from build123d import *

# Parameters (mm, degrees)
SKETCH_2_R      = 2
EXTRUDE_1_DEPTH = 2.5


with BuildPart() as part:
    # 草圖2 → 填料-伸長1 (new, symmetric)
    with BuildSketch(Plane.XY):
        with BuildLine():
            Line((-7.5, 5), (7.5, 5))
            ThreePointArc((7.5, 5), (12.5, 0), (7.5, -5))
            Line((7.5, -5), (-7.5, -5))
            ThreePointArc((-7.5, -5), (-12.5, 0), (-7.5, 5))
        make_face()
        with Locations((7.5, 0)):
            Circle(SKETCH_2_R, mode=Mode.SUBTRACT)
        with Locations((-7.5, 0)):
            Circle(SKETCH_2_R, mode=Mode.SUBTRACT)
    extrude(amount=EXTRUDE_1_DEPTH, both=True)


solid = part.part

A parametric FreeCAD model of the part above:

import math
import FreeCAD as App
import Part
import Sketcher
from FreeCAD import Vector

doc = App.newDocument("Part")
body = doc.addObject("PartDesign::Body", "Body")

# Sketch on XY plane
sketch1 = body.newObject("Sketcher::SketchObject", "Sketch")
sketch1.AttachmentSupport = (doc.getObject("XY_Plane"), [""])
sketch1.MapMode = "FlatFace"
sketch1.addGeometry([
    Part.LineSegment(Vector(7.5, 5, 0), Vector(-7.5, 5, 0)),  # 0
    Part.ArcOfCircle(Part.Circle(Vector(-7.5, 0, 0), Vector(0, 0, 1), 5), math.radians(90), math.radians(270)),  # 1
    Part.LineSegment(Vector(-7.5, -5, 0), Vector(7.5, -5, 0)),  # 2
    Part.ArcOfCircle(Part.Circle(Vector(7.5, 0, 0), Vector(0, 0, 1), 5), math.radians(-90), math.radians(90)),  # 3
    Part.Circle(Vector(7.5, 0, 0), Vector(0, 0, 1), 2),  # 4
    Part.Circle(Vector(-7.5, 0, 0), Vector(0, 0, 1), 2),  # 5
], False)
sketch1.addConstraint([
    Sketcher.Constraint("Tangent", 0, 2, 1, 1),
    Sketcher.Constraint("Tangent", 1, 2, 2, 1),
    Sketcher.Constraint("Tangent", 2, 2, 3, 1),
    Sketcher.Constraint("Tangent", 3, 2, 0, 1),
    Sketcher.Constraint("Horizontal", 0),
    Sketcher.Constraint("Horizontal", 2),
    Sketcher.Constraint("Coincident", 4, 3, 3, 3),
    Sketcher.Constraint("Coincident", 5, 3, 1, 3),
    Sketcher.Constraint("Equal", 4, 5),
    Sketcher.Constraint("Symmetric", 1, 3, 3, 3, -1, 1),
    Sketcher.Constraint("Diameter", 4, 4.0),
    Sketcher.Constraint("Radius", 1, 5.0),
    Sketcher.Constraint("DistanceX", 0, 2, 0, 1, 15.0),
])
pad1 = body.newObject("PartDesign::Pad", "Pad")
pad1.Profile = sketch1
pad1.Length = 5
pad1.Midplane = True

doc.recompute()
